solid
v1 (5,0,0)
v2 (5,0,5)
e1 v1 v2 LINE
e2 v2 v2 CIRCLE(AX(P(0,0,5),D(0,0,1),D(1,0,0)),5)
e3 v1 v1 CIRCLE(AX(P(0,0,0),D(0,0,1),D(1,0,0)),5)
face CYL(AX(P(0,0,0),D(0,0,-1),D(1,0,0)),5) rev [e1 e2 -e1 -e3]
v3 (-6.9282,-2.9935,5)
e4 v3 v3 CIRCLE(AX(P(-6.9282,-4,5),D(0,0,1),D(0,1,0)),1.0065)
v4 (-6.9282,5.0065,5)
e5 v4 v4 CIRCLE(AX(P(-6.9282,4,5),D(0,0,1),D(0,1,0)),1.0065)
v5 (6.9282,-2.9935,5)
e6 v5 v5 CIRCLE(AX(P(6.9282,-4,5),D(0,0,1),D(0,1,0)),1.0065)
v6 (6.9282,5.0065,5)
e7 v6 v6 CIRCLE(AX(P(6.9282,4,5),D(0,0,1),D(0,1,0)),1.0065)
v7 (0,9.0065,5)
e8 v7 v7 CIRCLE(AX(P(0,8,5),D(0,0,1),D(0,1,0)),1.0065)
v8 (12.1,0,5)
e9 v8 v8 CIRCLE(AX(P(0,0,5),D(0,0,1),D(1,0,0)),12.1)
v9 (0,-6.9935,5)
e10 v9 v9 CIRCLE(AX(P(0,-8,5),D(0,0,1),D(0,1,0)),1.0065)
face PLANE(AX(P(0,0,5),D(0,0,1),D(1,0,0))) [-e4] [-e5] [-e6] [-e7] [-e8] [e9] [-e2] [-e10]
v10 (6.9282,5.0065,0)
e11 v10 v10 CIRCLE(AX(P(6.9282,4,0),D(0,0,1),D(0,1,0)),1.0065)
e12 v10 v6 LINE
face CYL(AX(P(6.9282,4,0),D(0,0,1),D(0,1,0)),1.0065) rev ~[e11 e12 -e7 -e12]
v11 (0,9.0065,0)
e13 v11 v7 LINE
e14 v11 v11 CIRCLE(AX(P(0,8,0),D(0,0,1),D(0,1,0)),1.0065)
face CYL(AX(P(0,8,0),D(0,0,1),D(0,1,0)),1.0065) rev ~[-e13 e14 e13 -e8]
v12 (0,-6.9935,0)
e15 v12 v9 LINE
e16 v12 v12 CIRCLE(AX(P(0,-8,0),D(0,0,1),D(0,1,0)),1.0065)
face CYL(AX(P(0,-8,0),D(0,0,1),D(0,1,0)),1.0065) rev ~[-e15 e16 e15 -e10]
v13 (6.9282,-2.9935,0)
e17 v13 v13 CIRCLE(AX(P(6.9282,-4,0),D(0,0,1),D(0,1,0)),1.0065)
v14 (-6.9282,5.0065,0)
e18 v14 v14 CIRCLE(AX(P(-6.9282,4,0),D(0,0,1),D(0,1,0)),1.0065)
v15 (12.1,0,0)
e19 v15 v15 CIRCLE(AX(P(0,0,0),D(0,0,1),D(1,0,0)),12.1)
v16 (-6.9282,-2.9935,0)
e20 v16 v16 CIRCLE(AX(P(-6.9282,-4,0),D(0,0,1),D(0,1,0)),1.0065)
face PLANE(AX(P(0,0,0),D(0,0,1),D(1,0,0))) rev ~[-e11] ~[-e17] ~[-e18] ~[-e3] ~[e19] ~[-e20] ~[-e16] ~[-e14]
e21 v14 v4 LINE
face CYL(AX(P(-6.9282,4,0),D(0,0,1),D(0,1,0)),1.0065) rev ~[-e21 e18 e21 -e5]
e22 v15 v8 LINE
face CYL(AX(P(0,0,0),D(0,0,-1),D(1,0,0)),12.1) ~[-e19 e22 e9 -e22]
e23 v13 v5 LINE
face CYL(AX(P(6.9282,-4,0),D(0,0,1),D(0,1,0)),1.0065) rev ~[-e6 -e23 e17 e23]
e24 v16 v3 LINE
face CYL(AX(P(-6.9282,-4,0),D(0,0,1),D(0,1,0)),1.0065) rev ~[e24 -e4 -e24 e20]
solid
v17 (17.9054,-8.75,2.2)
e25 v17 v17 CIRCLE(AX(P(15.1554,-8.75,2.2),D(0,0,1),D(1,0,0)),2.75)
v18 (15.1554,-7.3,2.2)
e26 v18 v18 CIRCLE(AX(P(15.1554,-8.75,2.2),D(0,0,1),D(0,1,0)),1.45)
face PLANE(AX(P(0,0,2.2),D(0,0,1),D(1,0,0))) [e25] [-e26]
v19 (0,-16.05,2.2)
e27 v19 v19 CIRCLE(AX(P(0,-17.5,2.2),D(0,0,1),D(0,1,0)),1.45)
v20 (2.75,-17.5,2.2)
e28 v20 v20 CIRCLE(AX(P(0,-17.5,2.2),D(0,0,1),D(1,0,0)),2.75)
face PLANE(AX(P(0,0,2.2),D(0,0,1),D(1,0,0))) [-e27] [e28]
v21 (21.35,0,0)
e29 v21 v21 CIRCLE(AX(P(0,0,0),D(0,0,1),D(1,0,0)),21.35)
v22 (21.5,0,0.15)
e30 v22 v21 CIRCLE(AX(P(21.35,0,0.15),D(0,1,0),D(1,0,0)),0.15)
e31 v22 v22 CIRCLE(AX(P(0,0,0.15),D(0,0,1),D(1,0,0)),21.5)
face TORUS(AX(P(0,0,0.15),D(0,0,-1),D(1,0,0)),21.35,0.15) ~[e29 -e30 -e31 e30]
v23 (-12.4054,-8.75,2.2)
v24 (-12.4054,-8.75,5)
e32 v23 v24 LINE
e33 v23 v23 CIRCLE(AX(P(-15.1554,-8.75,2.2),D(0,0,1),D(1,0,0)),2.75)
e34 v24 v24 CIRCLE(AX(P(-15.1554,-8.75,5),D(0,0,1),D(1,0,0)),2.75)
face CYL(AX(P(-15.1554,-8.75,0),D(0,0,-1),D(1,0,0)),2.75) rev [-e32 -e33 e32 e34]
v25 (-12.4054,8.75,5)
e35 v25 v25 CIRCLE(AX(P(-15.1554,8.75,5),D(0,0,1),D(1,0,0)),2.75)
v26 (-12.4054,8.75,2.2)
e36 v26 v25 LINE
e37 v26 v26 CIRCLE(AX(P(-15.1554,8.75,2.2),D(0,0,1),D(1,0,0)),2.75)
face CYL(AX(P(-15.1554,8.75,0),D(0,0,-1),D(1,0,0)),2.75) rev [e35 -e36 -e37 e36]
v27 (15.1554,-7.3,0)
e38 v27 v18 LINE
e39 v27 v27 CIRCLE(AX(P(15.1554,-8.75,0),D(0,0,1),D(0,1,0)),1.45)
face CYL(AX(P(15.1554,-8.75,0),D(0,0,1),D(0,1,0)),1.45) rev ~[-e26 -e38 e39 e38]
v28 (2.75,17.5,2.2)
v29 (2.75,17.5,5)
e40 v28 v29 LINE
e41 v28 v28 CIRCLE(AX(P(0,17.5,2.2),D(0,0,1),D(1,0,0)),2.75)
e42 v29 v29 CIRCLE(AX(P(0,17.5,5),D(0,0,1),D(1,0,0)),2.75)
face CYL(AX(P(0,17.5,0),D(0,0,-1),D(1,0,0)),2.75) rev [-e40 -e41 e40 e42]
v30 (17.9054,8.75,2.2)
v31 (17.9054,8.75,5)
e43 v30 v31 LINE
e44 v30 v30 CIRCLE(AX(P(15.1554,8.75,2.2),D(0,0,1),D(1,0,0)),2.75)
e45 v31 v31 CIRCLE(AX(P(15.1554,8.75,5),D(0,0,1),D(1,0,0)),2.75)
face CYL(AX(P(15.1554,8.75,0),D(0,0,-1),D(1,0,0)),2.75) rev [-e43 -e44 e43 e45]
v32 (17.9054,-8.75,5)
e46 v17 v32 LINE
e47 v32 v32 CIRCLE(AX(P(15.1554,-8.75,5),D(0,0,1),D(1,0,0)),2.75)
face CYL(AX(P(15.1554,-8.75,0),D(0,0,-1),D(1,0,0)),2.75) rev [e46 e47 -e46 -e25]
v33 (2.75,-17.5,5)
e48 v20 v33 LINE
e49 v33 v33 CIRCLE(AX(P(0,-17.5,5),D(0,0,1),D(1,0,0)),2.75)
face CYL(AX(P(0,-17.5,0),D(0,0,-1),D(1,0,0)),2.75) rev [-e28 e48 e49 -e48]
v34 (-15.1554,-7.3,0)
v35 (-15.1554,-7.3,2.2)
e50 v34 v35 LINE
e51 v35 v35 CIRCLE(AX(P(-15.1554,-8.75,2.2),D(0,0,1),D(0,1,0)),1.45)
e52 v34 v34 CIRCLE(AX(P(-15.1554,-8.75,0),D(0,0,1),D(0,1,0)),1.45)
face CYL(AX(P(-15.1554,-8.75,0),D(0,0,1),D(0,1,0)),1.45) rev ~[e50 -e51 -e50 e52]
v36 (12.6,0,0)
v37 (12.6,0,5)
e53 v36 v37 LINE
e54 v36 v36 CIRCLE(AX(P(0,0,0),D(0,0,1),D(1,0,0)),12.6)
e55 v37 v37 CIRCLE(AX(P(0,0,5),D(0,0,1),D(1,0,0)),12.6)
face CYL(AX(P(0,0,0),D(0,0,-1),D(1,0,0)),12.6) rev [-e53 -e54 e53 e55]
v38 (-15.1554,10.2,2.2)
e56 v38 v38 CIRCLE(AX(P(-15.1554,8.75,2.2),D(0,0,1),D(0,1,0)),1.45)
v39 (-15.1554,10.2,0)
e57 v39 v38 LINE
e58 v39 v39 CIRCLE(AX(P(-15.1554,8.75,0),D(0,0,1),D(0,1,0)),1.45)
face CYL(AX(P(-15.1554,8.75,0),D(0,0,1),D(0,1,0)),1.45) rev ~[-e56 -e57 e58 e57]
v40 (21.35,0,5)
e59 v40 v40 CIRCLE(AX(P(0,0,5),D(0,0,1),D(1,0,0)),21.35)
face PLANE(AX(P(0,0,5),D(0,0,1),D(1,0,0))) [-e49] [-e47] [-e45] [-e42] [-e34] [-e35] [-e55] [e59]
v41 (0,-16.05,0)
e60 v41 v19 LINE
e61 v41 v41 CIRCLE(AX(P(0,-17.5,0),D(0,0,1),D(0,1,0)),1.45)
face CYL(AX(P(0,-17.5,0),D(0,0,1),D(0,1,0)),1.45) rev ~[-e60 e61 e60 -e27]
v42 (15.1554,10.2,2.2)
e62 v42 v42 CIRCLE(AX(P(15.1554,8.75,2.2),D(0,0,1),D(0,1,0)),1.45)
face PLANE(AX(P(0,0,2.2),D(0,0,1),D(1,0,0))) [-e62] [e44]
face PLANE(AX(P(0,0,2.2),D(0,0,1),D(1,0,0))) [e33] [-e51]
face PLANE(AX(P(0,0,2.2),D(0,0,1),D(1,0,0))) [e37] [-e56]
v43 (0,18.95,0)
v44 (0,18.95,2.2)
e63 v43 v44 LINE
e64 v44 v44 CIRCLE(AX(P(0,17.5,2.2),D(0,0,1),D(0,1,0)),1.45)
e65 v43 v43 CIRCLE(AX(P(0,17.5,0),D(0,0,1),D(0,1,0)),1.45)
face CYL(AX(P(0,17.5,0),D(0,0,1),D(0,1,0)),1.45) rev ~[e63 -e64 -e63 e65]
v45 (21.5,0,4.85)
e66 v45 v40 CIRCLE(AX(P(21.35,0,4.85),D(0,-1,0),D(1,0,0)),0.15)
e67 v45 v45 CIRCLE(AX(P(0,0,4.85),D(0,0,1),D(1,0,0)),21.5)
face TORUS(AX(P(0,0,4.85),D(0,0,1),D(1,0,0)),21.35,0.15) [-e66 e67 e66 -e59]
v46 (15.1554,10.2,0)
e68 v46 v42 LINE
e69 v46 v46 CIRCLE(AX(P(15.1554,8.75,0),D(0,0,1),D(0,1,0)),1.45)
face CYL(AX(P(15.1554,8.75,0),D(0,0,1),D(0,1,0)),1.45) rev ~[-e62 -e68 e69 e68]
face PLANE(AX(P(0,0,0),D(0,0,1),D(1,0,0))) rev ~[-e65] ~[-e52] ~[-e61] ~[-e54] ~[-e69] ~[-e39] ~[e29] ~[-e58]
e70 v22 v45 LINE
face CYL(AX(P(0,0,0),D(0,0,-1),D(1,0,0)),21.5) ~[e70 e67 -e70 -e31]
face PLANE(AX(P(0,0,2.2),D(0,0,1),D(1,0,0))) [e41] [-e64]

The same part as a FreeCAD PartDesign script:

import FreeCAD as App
import Part
import Sketcher

V = App.Vector


def edges_at(feature, points):
    """Names of the edges that pass closest to the given points."""
    edges = feature.Shape.Edges
    near = lambda p: min(range(len(edges)), key=lambda i: edges[i].distToShape(Part.Vertex(*p))[0])
    return sorted({f"Edge{near(p) + 1}" for p in points})

doc = App.newDocument("Part")
params = doc.addObject("Spreadsheet::Sheet", "Params")
for row, (alias, value) in enumerate([
    ("sketch1_diameter", "43 mm"),
    ("sketch1_diameter2", "10 mm"),
    ("sketch1_diameter3", "5.5 mm"),
    ("sketch1_diameter4", "25.2 mm"),
    ("sketch1_diameter5", "24.2 mm"),
    ("pad1_length", "5 mm"),
    ("sketch2_diameter", "5.5 mm"),
    ("pad2_length", "2.2 mm"),
    ("sketch3_diameter", "2.9 mm"),
    ("hole_diameter", "2.9 mm"),
    ("hole2_diameter", "2.013 mm"),
    ("fillet_radius", "0.15 mm"),
], start=1):
    params.set(f"A{row}", alias)
    params.set(f"B{row}", "=" + value)
    params.setAlias(f"B{row}", alias)

body = doc.addObject("PartDesign::Body", "Body")
body.AllowCompound = True

# Sketch on XY plane
sketch1 = body.newObject("Sketcher::SketchObject", "Sketch")
sketch1.AttachmentSupport = (doc.getObject("XY_Plane"), [""])
sketch1.MapMode = "FlatFace"
sketch1.addGeometry([
    Part.Circle(V(0, 0, 0), V(0, 0, 1), 21.5),  # 0
    Part.Circle(V(-15.1554, -8.75, 0), V(0, 0, 1), 2.75),  # 1
    Part.Circle(V(0, -17.5, 0), V(0, 0, 1), 2.75),  # 2
    Part.Circle(V(15.1554, -8.75, 0), V(0, 0, 1), 2.75),  # 3
    Part.Circle(V(-15.1554, 8.75, 0), V(0, 0, 1), 2.75),  # 4
    Part.Circle(V(0, 0, 0), V(0, 0, 1), 12.6),  # 5
    Part.Circle(V(15.1554, 8.75, 0), V(0, 0, 1), 2.75),  # 6
    Part.Circle(V(0, 17.5, 0), V(0, 0, 1), 2.75),  # 7
    Part.Circle(V(0, 0, 0), V(0, 0, 1), 12.1),  # 8
    Part.Circle(V(0, 0, 0), V(0, 0, 1), 5),  # 9
], False)
sketch1.addConstraint([
    Sketcher.Constraint("Coincident", 0, 3, -1, 1),
    Sketcher.Constraint("Coincident", 5, 3, -1, 1),
    Sketcher.Constraint("Coincident", 8, 3, -1, 1),
    Sketcher.Constraint("Coincident", 9, 3, -1, 1),
    Sketcher.Constraint("Equal", 1, 2),
    Sketcher.Constraint("Equal", 2, 3),
    Sketcher.Constraint("Equal", 3, 4),
    Sketcher.Constraint("Equal", 4, 6),
    Sketcher.Constraint("Equal", 6, 7),
    Sketcher.Constraint("Symmetric", 3, 3, 4, 3, -1, 1),
    Sketcher.Constraint("Symmetric", 1, 3, 6, 3, -1, 1),
    Sketcher.Constraint("Symmetric", 2, 3, 7, 3, -1, 1),
    Sketcher.Constraint("Symmetric", 1, 3, 3, 3, -2),
    Sketcher.Constraint("PointOnObject", 2, 3, -2),
    Sketcher.Constraint("Diameter", 0, 43.0),
    Sketcher.Constraint("Diameter", 9, 10.0),
    Sketcher.Constraint("Diameter", 1, 5.5),
    Sketcher.Constraint("Diameter", 5, 25.2),
    Sketcher.Constraint("Diameter", 8, 24.2),
    Sketcher.Constraint("DistanceY", 2, 3, -1, 1, 17.5),
    Sketcher.Constraint("DistanceY", 1, 3, 4, 3, 17.5),
    Sketcher.Constraint("DistanceX", 1, 3, -1, 1, 15.1554),
])
sketch1.setExpression("Constraints[14]", "Params.sketch1_diameter")
sketch1.setExpression("Constraints[15]", "Params.sketch1_diameter2")
sketch1.setExpression("Constraints[16]", "Params.sketch1_diameter3")
sketch1.setExpression("Constraints[17]", "Params.sketch1_diameter4")
sketch1.setExpression("Constraints[18]", "Params.sketch1_diameter5")
pad1 = body.newObject("PartDesign::Pad", "Pad")
pad1.Profile = sketch1
pad1.setExpression("Length", "Params.pad1_length")

# Sketch on XY plane
sketch2 = body.newObject("Sketcher::SketchObject", "Sketch001")
sketch2.AttachmentSupport = (doc.getObject("XY_Plane"), [""])
sketch2.MapMode = "FlatFace"
sketch2.addGeometry([
    Part.Circle(V(0, 17.5, 0), V(0, 0, 1), 2.75),  # 0
    Part.Circle(V(-15.1554, 8.75, 0), V(0, 0, 1), 2.75),  # 1
    Part.Circle(V(-15.1554, -8.75, 0), V(0, 0, 1), 2.75),  # 2
    Part.Circle(V(0, -17.5, 0), V(0, 0, 1), 2.75),  # 3
    Part.Circle(V(15.1554, -8.75, 0), V(0, 0, 1), 2.75),  # 4
    Part.Circle(V(15.1554, 8.75, 0), V(0, 0, 1), 2.75),  # 5
], False)
sketch2.addConstraint([
    Sketcher.Constraint("Equal", 0, 1),
    Sketcher.Constraint("Equal", 1, 2),
    Sketcher.Constraint("Equal", 2, 3),
    Sketcher.Constraint("Equal", 3, 4),
    Sketcher.Constraint("Equal", 4, 5),
    Sketcher.Constraint("Symmetric", 0, 3, 3, 3, -1, 1),
    Sketcher.Constraint("Symmetric", 1, 3, 4, 3, -1, 1),
    Sketcher.Constraint("Symmetric", 2, 3, 5, 3, -1, 1),
    Sketcher.Constraint("Symmetric", 2, 3, 4, 3, -2),
    Sketcher.Constraint("PointOnObject", 0, 3, -2),
    Sketcher.Constraint("Diameter", 0, 5.5),
    Sketcher.Constraint("DistanceY", -1, 1, 0, 3, 17.5),
    Sketcher.Constraint("DistanceY", 2, 3, 1, 3, 17.5),
    Sketcher.Constraint("DistanceX", 1, 3, -1, 1, 15.1554),
])
sketch2.setExpression("Constraints[10]", "Params.sketch2_diameter")
pad2 = body.newObject("PartDesign::Pad", "Pad001")
pad2.Profile = sketch2
pad2.setExpression("Length", "Params.pad2_length")

# Sketch on XY plane
sketch3 = body.newObject("Sketcher::SketchObject", "Sketch002")
sketch3.AttachmentSupport = (doc.getObject("XY_Plane"), [""])
sketch3.MapMode = "FlatFace"
sketch3.addGeometry([
    Part.Circle(V(0, 17.5, 0), V(0, 0, 1), 1.45),  # 0
    Part.Circle(V(15.1554, 8.75, 0), V(0, 0, 1), 1.45),  # 1
    Part.Circle(V(15.1554, -8.75, 0), V(0, 0, 1), 1.45),  # 2
    Part.Circle(V(0, -17.5, 0), V(0, 0, 1), 1.45),  # 3
    Part.Circle(V(-15.1554, -8.75, 0), V(0, 0, 1), 1.45),  # 4
    Part.Circle(V(-15.1554, 8.75, 0), V(0, 0, 1), 1.45),  # 5
], False)
sketch3.addConstraint([
    Sketcher.Constraint("Equal", 0, 1),
    Sketcher.Constraint("Equal", 1, 2),
    Sketcher.Constraint("Equal", 2, 3),
    Sketcher.Constraint("Equal", 3, 4),
    Sketcher.Constraint("Equal", 4, 5),
    Sketcher.Constraint("Symmetric", 0, 3, 3, 3, -1, 1),
    Sketcher.Constraint("Symmetric", 1, 3, 4, 3, -1, 1),
    Sketcher.Constraint("Symmetric", 2, 3, 5, 3, -1, 1),
    Sketcher.Constraint("Symmetric", 2, 3, 4, 3, -2),
    Sketcher.Constraint("PointOnObject", 0, 3, -2),
    Sketcher.Constraint("Diameter", 0, 2.9),
    Sketcher.Constraint("DistanceY", 3, 3, 0, 3, 35.0),
    Sketcher.Constraint("DistanceY", 2, 3, 1, 3, 17.5),
    Sketcher.Constraint("DistanceX", -1, 1, 1, 3, 15.1554),
])
sketch3.setExpression("Constraints[10]", "Params.sketch3_diameter")
doc.recompute()
hole = body.newObject("PartDesign::Hole", "Hole")
hole.Profile = sketch3
hole.ThreadType = "None"
hole.setExpression("Diameter", "Params.hole_diameter")
hole.DepthType = "ThroughAll"
hole.Reversed = True

# Sketch on XY plane
sketch4 = body.newObject("Sketcher::SketchObject", "Sketch003")
sketch4.AttachmentSupport = (doc.getObject("XY_Plane"), [""])
sketch4.MapMode = "FlatFace"
sketch4.addGeometry([
    Part.Circle(V(0, 8, 0), V(0, 0, 1), 1.0065),  # 0
    Part.Circle(V(-6.9282, 4, 0), V(0, 0, 1), 1.0065),  # 1
    Part.Circle(V(-6.9282, -4, 0), V(0, 0, 1), 1.0065),  # 2
    Part.Circle(V(0, -8, 0), V(0, 0, 1), 1.0065),  # 3
    Part.Circle(V(6.9282, -4, 0), V(0, 0, 1), 1.0065),  # 4
    Part.Circle(V(6.9282, 4, 0), V(0, 0, 1), 1.0065),  # 5
], False)
sketch4.addConstraint([
    Sketcher.Constraint("Equal", 0, 1),
    Sketcher.Constraint("Equal", 1, 2),
    Sketcher.Constraint("Equal", 2, 3),
    Sketcher.Constraint("Equal", 3, 4),
    Sketcher.Constraint("Equal", 4, 5),
    Sketcher.Constraint("Symmetric", 0, 3, 3, 3, -1, 1),
    Sketcher.Constraint("Symmetric", 1, 3, 4, 3, -1, 1),
    Sketcher.Constraint("Symmetric", 2, 3, 5, 3, -1, 1),
    Sketcher.Constraint("Symmetric", 2, 3, 4, 3, -2),
    Sketcher.Constraint("PointOnObject", 0, 3, -2),
    Sketcher.Constraint("Diameter", 0, 2.013),
    Sketcher.Constraint("DistanceY", -1, 1, 0, 3, 8.0),
    Sketcher.Constraint("DistanceY", -1, 1, 1, 3, 4.0),
    Sketcher.Constraint("DistanceX", 1, 3, -1, 1, 6.9282),
])
doc.recompute()
hole2 = body.newObject("PartDesign::Hole", "Hole001")
hole2.Profile = sketch4
hole2.ThreadType = "None"
hole2.setExpression("Diameter", "Params.hole2_diameter")
hole2.DepthType = "ThroughAll"
hole2.Reversed = True
doc.recompute()

fillet = body.newObject("PartDesign::Fillet", "Fillet")
fillet.Base = (hole2, edges_at(hole2, [(-21.5, 0, 5), (-21.5, 0, 0)]))
fillet.setExpression("Radius", "Params.fillet_radius")

doc.recompute()
